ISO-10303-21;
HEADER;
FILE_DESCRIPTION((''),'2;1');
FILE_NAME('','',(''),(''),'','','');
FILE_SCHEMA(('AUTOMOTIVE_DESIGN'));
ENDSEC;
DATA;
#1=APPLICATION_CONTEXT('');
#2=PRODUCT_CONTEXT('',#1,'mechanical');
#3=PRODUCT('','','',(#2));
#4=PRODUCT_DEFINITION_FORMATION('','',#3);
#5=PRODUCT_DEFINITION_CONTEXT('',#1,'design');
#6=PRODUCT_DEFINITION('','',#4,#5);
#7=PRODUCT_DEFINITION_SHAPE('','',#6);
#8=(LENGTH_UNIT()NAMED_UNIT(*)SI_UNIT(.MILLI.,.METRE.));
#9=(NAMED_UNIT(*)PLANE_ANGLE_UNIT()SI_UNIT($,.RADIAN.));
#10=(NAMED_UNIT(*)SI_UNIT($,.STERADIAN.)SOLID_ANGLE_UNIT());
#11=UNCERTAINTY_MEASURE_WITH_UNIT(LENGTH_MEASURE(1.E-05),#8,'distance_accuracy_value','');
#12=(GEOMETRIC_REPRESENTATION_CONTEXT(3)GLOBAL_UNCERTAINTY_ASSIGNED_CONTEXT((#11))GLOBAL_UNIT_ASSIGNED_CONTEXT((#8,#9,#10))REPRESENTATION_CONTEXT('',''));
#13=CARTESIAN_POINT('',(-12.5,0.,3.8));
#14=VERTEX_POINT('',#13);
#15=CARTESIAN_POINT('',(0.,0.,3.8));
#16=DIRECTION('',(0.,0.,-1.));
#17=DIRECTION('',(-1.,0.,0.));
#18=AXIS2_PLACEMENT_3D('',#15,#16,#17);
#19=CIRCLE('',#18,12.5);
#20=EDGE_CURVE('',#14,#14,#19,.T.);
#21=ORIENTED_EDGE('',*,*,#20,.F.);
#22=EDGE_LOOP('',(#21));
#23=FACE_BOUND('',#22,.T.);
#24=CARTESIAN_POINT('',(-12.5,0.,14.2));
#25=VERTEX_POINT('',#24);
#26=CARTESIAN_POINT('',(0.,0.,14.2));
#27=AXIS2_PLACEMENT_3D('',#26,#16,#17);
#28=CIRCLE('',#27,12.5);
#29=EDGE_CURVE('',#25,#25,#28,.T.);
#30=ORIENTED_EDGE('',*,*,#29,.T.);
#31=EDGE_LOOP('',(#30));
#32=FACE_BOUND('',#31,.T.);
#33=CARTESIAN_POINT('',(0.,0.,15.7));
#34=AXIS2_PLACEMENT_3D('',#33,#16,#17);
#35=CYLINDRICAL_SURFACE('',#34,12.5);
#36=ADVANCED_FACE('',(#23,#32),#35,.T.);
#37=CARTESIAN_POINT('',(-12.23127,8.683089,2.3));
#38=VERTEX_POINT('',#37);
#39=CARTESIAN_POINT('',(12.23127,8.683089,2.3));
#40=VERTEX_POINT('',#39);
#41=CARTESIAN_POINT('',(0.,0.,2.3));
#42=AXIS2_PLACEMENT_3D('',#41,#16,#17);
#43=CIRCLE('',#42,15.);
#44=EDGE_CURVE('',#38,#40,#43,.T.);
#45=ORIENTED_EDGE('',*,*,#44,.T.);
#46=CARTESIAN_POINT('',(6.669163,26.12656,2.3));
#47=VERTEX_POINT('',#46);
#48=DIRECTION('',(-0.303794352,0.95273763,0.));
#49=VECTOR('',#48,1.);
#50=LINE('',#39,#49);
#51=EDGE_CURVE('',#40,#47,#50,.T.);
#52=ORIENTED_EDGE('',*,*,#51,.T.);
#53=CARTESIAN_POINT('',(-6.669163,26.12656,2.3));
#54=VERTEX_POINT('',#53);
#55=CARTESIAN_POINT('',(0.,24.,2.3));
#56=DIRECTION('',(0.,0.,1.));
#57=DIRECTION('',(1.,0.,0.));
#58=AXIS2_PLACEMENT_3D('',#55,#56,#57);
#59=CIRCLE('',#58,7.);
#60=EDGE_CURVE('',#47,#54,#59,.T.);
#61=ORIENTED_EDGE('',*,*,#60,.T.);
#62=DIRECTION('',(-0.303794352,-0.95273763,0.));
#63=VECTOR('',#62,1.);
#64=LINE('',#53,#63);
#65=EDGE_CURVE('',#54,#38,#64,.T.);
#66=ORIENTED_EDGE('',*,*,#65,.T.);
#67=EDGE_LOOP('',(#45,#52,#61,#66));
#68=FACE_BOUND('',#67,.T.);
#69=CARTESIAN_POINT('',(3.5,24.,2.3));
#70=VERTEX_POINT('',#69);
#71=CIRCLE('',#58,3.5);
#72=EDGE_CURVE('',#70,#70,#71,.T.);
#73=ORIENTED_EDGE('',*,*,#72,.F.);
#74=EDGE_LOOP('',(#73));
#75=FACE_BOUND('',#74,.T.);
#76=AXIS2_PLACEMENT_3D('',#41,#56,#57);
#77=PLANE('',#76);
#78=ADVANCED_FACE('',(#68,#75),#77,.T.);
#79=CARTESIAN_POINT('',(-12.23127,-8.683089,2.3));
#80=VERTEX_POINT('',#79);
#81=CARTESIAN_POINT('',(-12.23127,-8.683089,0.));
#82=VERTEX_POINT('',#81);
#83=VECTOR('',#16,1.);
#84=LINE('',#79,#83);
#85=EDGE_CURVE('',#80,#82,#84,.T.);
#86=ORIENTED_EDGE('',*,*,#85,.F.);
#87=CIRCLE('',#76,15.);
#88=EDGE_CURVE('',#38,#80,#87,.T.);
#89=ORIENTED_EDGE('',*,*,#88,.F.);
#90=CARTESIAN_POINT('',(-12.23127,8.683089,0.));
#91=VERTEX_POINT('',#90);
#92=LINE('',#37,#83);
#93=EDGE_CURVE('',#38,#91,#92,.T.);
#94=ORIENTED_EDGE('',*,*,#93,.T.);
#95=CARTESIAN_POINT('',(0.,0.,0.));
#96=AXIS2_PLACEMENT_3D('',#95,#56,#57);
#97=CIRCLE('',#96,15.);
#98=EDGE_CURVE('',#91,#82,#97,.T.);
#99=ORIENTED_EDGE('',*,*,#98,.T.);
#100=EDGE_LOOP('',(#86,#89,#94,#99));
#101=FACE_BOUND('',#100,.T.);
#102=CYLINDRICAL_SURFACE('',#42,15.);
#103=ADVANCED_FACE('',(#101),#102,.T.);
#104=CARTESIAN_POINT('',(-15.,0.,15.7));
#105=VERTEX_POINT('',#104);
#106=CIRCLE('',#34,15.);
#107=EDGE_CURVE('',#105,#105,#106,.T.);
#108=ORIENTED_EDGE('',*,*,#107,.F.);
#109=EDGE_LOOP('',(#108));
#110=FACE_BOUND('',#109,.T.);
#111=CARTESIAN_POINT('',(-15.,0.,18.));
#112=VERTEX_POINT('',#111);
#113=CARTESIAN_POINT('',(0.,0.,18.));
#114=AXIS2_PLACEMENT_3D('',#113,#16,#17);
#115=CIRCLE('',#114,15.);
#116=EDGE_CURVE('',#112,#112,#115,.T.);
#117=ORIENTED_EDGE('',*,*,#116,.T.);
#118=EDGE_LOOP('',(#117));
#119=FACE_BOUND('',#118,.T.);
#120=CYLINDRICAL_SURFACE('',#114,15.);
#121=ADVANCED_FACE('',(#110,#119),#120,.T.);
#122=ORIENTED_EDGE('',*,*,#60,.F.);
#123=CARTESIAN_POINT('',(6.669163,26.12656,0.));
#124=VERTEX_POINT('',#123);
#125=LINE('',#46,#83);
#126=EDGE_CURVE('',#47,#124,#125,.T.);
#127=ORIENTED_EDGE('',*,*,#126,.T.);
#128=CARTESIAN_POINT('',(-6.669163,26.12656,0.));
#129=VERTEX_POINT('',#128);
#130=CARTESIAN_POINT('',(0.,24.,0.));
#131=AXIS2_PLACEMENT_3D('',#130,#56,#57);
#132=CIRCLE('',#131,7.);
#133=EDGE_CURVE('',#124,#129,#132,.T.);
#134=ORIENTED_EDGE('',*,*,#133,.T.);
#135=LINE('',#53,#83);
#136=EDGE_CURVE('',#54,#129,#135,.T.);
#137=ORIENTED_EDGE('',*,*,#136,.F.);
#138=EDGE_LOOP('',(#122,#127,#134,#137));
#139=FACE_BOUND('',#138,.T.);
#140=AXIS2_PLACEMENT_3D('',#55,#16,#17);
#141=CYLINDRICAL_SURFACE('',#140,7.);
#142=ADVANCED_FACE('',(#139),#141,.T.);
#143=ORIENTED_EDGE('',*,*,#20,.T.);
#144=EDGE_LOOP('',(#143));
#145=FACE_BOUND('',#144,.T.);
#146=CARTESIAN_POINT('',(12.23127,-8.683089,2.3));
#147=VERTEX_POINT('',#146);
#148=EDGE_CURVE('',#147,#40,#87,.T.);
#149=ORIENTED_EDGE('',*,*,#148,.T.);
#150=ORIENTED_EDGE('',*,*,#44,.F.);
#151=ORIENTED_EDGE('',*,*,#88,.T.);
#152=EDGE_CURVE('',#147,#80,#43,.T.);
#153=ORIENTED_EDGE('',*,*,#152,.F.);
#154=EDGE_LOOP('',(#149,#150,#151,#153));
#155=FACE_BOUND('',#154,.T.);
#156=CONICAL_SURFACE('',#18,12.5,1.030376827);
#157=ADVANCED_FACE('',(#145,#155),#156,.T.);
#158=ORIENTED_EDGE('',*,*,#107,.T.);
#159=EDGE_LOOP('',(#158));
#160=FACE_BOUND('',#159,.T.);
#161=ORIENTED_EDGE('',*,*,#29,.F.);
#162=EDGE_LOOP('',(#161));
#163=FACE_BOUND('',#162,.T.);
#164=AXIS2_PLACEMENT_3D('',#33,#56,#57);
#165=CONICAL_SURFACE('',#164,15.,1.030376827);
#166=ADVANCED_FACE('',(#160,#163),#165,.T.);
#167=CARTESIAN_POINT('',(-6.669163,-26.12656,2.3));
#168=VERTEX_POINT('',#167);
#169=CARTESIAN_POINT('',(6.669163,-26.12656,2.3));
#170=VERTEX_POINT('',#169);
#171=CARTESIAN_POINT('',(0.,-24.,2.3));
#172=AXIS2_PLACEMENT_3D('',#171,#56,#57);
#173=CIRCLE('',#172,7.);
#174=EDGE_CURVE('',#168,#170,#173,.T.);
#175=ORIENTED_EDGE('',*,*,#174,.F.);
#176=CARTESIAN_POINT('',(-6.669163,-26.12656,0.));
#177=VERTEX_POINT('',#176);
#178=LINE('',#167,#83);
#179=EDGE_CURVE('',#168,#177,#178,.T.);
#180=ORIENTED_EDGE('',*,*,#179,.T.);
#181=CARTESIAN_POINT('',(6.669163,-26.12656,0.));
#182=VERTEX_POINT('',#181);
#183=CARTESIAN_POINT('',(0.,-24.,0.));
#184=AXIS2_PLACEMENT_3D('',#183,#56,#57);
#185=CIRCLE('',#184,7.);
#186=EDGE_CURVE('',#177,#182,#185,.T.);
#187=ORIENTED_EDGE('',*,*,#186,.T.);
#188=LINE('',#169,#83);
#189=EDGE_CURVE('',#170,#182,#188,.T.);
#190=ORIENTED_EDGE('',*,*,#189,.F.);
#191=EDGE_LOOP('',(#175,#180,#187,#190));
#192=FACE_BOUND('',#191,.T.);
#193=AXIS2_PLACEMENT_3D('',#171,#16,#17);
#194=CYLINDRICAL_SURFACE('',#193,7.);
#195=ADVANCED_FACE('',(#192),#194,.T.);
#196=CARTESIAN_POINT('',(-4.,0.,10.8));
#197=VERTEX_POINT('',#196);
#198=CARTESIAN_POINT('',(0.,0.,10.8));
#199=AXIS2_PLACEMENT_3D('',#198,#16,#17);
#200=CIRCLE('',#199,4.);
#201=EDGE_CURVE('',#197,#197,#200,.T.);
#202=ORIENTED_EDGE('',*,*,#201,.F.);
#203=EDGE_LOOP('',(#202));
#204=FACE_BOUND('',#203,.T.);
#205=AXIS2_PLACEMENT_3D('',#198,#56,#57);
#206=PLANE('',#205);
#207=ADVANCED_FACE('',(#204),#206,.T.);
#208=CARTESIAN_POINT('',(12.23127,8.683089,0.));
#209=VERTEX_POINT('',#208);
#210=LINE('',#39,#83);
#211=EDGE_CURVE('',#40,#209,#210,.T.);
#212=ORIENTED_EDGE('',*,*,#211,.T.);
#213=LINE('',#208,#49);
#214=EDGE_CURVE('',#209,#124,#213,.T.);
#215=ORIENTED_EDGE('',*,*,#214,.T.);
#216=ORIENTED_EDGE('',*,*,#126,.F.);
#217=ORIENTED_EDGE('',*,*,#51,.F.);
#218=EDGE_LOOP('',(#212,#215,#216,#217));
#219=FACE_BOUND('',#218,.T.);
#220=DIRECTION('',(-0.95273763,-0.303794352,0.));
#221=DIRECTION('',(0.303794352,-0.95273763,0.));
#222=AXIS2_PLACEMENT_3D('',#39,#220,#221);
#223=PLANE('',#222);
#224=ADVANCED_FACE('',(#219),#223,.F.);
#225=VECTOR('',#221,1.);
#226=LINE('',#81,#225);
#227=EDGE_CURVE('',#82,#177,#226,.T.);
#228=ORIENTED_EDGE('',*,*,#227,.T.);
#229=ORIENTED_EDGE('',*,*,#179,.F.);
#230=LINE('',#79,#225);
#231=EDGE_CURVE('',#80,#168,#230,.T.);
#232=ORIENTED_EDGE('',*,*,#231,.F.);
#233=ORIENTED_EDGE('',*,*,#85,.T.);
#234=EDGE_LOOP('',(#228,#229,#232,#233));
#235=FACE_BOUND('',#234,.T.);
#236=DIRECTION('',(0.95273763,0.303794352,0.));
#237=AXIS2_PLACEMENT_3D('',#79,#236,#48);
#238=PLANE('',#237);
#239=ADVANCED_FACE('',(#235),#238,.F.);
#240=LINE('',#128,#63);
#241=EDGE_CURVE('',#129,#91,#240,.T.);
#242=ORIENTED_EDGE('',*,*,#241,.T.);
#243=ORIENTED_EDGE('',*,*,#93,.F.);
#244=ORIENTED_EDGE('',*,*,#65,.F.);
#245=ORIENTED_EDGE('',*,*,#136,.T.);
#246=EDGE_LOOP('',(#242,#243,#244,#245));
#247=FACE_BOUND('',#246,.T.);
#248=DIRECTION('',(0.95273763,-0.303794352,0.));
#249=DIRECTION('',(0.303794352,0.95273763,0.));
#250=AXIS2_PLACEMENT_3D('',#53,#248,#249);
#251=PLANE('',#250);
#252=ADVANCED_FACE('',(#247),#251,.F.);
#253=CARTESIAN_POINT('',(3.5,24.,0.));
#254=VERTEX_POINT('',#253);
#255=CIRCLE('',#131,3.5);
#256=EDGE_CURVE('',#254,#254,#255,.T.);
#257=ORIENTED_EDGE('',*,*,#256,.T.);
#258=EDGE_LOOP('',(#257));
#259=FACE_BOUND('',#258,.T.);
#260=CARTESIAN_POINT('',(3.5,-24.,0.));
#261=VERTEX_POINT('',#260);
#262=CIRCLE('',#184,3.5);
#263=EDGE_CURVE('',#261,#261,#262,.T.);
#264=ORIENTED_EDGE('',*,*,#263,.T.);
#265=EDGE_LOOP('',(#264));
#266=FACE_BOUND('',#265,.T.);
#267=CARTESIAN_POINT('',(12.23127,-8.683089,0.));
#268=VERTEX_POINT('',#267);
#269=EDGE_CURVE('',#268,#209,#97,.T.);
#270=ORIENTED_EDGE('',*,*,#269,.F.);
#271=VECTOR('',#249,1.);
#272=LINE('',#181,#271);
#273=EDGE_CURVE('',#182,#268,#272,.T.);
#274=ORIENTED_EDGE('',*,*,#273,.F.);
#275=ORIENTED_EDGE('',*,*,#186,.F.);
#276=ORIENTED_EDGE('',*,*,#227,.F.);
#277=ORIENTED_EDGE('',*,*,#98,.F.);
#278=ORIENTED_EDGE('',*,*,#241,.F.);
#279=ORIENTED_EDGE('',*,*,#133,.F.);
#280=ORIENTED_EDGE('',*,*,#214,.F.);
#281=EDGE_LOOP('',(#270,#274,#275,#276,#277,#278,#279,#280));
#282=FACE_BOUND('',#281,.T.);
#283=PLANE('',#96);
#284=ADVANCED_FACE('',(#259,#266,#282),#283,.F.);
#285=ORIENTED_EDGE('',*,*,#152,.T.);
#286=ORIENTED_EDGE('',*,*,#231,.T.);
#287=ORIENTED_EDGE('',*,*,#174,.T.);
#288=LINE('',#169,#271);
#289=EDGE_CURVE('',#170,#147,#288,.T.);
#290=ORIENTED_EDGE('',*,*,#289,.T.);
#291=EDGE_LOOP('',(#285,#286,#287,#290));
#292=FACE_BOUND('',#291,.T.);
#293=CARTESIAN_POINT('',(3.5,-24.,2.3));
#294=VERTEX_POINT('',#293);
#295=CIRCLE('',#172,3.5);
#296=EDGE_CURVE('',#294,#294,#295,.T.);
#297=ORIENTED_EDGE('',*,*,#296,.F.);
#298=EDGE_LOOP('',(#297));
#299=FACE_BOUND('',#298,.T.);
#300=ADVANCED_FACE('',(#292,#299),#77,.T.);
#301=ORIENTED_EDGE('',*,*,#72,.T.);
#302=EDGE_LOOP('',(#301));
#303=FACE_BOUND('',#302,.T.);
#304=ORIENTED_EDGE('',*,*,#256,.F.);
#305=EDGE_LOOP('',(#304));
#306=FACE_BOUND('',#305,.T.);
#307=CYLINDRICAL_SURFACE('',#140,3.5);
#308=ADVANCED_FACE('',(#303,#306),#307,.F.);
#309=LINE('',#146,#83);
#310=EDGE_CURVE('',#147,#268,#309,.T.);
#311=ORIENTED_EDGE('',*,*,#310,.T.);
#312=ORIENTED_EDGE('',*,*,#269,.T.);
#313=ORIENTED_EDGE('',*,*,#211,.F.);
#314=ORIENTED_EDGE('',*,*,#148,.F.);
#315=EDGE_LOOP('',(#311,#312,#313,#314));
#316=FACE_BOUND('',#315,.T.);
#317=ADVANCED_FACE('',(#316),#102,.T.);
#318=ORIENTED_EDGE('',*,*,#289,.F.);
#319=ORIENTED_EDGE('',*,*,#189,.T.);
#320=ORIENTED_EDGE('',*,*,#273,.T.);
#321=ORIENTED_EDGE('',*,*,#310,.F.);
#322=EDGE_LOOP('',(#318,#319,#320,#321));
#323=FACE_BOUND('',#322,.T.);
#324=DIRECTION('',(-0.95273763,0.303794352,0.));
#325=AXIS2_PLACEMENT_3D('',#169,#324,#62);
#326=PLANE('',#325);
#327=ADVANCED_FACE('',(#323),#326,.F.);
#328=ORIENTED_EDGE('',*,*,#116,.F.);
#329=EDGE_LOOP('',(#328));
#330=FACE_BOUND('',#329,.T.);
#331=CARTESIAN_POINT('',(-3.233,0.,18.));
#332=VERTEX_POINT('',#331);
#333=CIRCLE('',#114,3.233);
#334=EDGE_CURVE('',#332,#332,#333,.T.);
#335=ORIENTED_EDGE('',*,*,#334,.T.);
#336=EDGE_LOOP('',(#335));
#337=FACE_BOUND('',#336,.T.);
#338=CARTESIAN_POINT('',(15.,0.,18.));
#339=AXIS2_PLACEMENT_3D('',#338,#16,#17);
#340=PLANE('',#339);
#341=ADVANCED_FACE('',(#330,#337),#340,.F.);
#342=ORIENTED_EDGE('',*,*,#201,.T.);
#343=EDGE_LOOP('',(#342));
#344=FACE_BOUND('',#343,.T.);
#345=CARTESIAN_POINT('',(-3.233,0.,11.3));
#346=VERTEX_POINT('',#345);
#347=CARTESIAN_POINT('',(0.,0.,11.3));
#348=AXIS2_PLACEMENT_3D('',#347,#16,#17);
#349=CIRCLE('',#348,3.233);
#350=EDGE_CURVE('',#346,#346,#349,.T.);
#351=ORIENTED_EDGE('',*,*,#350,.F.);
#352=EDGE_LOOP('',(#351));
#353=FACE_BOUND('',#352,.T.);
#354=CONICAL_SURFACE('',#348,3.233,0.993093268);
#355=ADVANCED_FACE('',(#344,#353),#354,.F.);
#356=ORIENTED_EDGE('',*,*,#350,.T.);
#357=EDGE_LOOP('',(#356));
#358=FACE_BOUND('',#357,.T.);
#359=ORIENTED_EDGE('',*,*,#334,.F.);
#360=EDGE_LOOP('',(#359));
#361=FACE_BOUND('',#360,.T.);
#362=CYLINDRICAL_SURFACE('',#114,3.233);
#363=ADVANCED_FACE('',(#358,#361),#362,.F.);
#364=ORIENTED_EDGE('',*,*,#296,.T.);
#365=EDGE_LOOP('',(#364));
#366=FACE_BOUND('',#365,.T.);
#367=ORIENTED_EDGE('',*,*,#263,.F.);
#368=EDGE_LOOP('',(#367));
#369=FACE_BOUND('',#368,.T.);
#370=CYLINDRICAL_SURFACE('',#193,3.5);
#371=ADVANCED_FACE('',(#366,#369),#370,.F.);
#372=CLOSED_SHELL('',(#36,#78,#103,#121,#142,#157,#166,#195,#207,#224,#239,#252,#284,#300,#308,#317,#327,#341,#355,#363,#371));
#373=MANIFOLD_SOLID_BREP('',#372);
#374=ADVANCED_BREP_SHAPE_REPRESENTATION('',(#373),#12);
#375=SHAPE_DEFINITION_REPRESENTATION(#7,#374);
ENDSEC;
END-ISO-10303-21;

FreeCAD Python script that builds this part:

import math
import FreeCAD as App
import Part
import Sketcher
from FreeCAD import Vector
Q = App.Units.Quantity


def add_polygon(sketch, points):
    """Adds a closed chain of lines whose ends are joined by coincident constraints."""
    first, n = sketch.GeometryCount, len(points)
    for a, b in zip(points, points[1:] + points[:1]):
        sketch.addGeometry(Part.LineSegment(App.Vector(*a, 0), App.Vector(*b, 0)), False)
    for i in range(n):
        sketch.addConstraint(Sketcher.Constraint("Coincident", first + i, 2, first + (i + 1) % n, 1))

doc = App.newDocument("Part")
params = doc.addObject("Spreadsheet::Sheet", "Params")
for row, (alias, value) in enumerate([
    ("sketch1_diameter", "7 mm"),
    ("sketch1_radius", "7 mm"),
    ("sketch1_radius2", "15 mm"),
    ("pad1_length", "2.3 mm"),
    ("sketch2_width", "15 mm"),
    ("sketch2_height", "13.4 mm"),
    ("sketch2_height2", "10.4 mm"),
    ("revolution_angle", "360 deg"),
    ("sketch3_width", "15 mm"),
    ("sketch3_height", "2.3 mm"),
    ("revolution2_angle", "360 deg"),
    ("sketch4_width", "4 mm"),
    ("sketch4_height", "7.2 mm"),
    ("sketch4_height2", "6.7 mm"),
    ("groove_angle", "360 deg"),
], start=1):
    params.set(f"A{row}", alias)
    params.set(f"B{row}", "=" + value)
    params.setAlias(f"B{row}", alias)

body = doc.addObject("PartDesign::Body", "Body")

sketch1 = body.newObject("Sketcher::SketchObject", "Sketch")
sketch1.AttachmentSupport = (doc.getObject("XY_Plane"), [""])
sketch1.MapMode = "FlatFace"
sketch1.addGeometry(Part.LineSegment(Vector(-12.2, -8.7, 0), Vector(-6.7, -26.1, 0)), False)
sketch1.addGeometry(Part.ArcOfCircle(Part.Circle(Vector(0, -24, 0), Vector(0, 0, 1), 7), math.radians(-162), math.radians(-18)), False)
sketch1.addGeometry(Part.LineSegment(Vector(6.7, -26.1, 0), Vector(12.2, -8.7, 0)), False)
sketch1.addGeometry(Part.ArcOfCircle(Part.Circle(Vector(0, 0, 0), Vector(0, 0, 1), 15), math.radians(-35), math.radians(35)), False)
sketch1.addGeometry(Part.LineSegment(Vector(12.2, 8.7, 0), Vector(6.7, 26.1, 0)), False)
sketch1.addGeometry(Part.ArcOfCircle(Part.Circle(Vector(0, 24, 0), Vector(0, 0, 1), 7), math.radians(18), math.radians(162)), False)
sketch1.addGeometry(Part.LineSegment(Vector(-6.7, 26.1, 0), Vector(-12.2, 8.7, 0)), False)
sketch1.addGeometry(Part.ArcOfCircle(Part.Circle(Vector(0, 0, 0), Vector(0, 0, 1), 15), math.radians(145), math.radians(215)), False)
sketch1.addGeometry(Part.Circle(Vector(0, -24, 0), Vector(0, 0, 1), 3.5), False)
sketch1.addGeometry(Part.Circle(Vector(0, 24, 0), Vector(0, 0, 1), 3.5), False)
sketch1.addConstraint(Sketcher.Constraint("Tangent", 0, 2, 1, 1))
sketch1.addConstraint(Sketcher.Constraint("Tangent", 1, 2, 2, 1))
sketch1.addConstraint(Sketcher.Constraint("Coincident", 2, 2, 3, 1))
sketch1.addConstraint(Sketcher.Constraint("Coincident", 3, 2, 4, 1))
sketch1.addConstraint(Sketcher.Constraint("Tangent", 4, 2, 5, 1))
sketch1.addConstraint(Sketcher.Constraint("Tangent", 5, 2, 6, 1))
sketch1.addConstraint(Sketcher.Constraint("Coincident", 6, 2, 7, 1))
sketch1.addConstraint(Sketcher.Constraint("Coincident", 7, 2, 0, 1))
sketch1.addConstraint(Sketcher.Constraint("Coincident", 3, 3, -1, 1))
sketch1.addConstraint(Sketcher.Constraint("Coincident", 7, 3, -1, 1))
sketch1.addConstraint(Sketcher.Constraint("Coincident", 8, 3, 1, 3))
sketch1.addConstraint(Sketcher.Constraint("Coincident", 9, 3, 5, 3))
sketch1.addConstraint(Sketcher.Constraint("Equal", 1, 5))
sketch1.addConstraint(Sketcher.Constraint("Equal", 3, 7))
sketch1.addConstraint(Sketcher.Constraint("Equal", 8, 9))
sketch1.addConstraint(Sketcher.Constraint("Symmetric", 1, 3, 5, 3, -1, 1))
sketch1.addConstraint(Sketcher.Constraint("Symmetric", 0, 2, 1, 2, -2))
sketch1.addConstraint(Sketcher.Constraint("Parallel", 0, 4))
sketch1.addConstraint(Sketcher.Constraint("Parallel", 2, 6))
sketch1.addConstraint(Sketcher.Constraint("Diameter", 8, Q("7 mm")))
sketch1.addConstraint(Sketcher.Constraint("Radius", 1, Q("7 mm")))
sketch1.addConstraint(Sketcher.Constraint("Radius", 3, Q("15 mm")))
sketch1.addConstraint(Sketcher.Constraint("DistanceY", 1, 3, -1, 1, Q("24 mm")))
sketch1.addConstraint(Sketcher.Constraint("DistanceY", 0, 2, -1, 1, Q("26.12656 mm")))
sketch1.setExpression("Constraints[19]", "Params.sketch1_diameter")
sketch1.setExpression("Constraints[20]", "Params.sketch1_radius")
sketch1.setExpression("Constraints[21]", "Params.sketch1_radius2")
pad1 = body.newObject("PartDesign::Pad", "Pad")
pad1.Profile = sketch1
pad1.setExpression("Length", "Params.pad1_length")

sketch2 = body.newObject("Sketcher::SketchObject", "Sketch001")
sketch2.AttachmentSupport = (doc.getObject("XZ_Plane"), [""])
sketch2.MapMode = "FlatFace"
add_polygon(sketch2, [(15, 2.3), (0, 2.3), (0, 15.7), (15, 15.7), (12.5, 14.2), (12.5, 3.8)])
sketch2.addConstraint(Sketcher.Constraint("Horizontal", 0))
sketch2.addConstraint(Sketcher.Constraint("Vertical", 1))
sketch2.addConstraint(Sketcher.Constraint("Horizontal", 2))
sketch2.addConstraint(Sketcher.Constraint("Vertical", 4))
sketch2.addConstraint(Sketcher.Constraint("PointOnObject", 0, 2, -2))
sketch2.addConstraint(Sketcher.Constraint("Vertical", 2, 2, 5, 2))
sketch2.addConstraint(Sketcher.Constraint("Equal", 3, 5))
sketch2.addConstraint(Sketcher.Constraint("DistanceX", 0, 2, 0, 1, Q("15 mm")))
sketch2.addConstraint(Sketcher.Constraint("DistanceY", 1, 1, 1, 2, Q("13.4 mm")))
sketch2.addConstraint(Sketcher.Constraint("DistanceY", 4, 2, 4, 1, Q("10.4 mm")))
sketch2.addConstraint(Sketcher.Constraint("DistanceY", -1, 1, 0, 2, Q("2.3 mm")))
sketch2.addConstraint(Sketcher.Constraint("DistanceX", -1, 1, 3, 2, Q("12.5 mm")))
sketch2.setExpression("Constraints[13]", "Params.sketch2_width")
sketch2.setExpression("Constraints[14]", "Params.sketch2_height")
sketch2.setExpression("Constraints[15]", "Params.sketch2_height2")
revolution = body.newObject("PartDesign::Revolution", "Revolution")
revolution.Profile = sketch2
revolution.ReferenceAxis = (sketch2, ["V_Axis"])
revolution.setExpression("Angle", "Params.revolution_angle")

sketch3 = body.newObject("Sketcher::SketchObject", "Sketch002")
sketch3.AttachmentSupport = (doc.getObject("XZ_Plane"), [""])
sketch3.MapMode = "FlatFace"
add_polygon(sketch3, [(0, 15.7), (0, 18), (15, 18), (15, 15.7)])
sketch3.addConstraint(Sketcher.Constraint("Vertical", 0))
sketch3.addConstraint(Sketcher.Constraint("Horizontal", 1))
sketch3.addConstraint(Sketcher.Constraint("Vertical", 2))
sketch3.addConstraint(Sketcher.Constraint("Horizontal", 3))
sketch3.addConstraint(Sketcher.Constraint("PointOnObject", 0, 2, -2))
sketch3.addConstraint(Sketcher.Constraint("DistanceX", 1, 1, 1, 2, Q("15 mm")))
sketch3.addConstraint(Sketcher.Constraint("DistanceY", 0, 1, 0, 2, Q("2.3 mm")))
sketch3.addConstraint(Sketcher.Constraint("DistanceY", -1, 1, 0, 2, Q("18 mm")))
sketch3.setExpression("Constraints[9]", "Params.sketch3_width")
sketch3.setExpression("Constraints[10]", "Params.sketch3_height")
revolution2 = body.newObject("PartDesign::Revolution", "Revolution001")
revolution2.Profile = sketch3
revolution2.ReferenceAxis = (sketch3, ["V_Axis"])
revolution2.setExpression("Angle", "Params.revolution2_angle")

sketch4 = body.newObject("Sketcher::SketchObject", "Sketch003")
sketch4.AttachmentSupport = (doc.getObject("XZ_Plane"), [""])
sketch4.MapMode = "FlatFace"
add_polygon(sketch4, [(4, 10.8), (0, 10.8), (0, 18), (3.2, 18), (3.2, 11.3)])
sketch4.addConstraint(Sketcher.Constraint("Horizontal", 0))
sketch4.addConstraint(Sketcher.Constraint("Vertical", 1))
sketch4.addConstraint(Sketcher.Constraint("Horizontal", 2))
sketch4.addConstraint(Sketcher.Constraint("Vertical", 3))
sketch4.addConstraint(Sketcher.Constraint("PointOnObject", 0, 2, -2))
sketch4.addConstraint(Sketcher.Constraint("DistanceX", 0, 2, 0, 1, Q("4 mm")))
sketch4.addConstraint(Sketcher.Constraint("DistanceY", 1, 1, 1, 2, Q("7.2 mm")))
sketch4.addConstraint(Sketcher.Constraint("DistanceY", 3, 2, 3, 1, Q("6.7 mm")))
sketch4.addConstraint(Sketcher.Constraint("DistanceY", -1, 1, 1, 2, Q("18 mm")))
sketch4.addConstraint(Sketcher.Constraint("DistanceX", 2, 1, 2, 2, Q("3.233 mm")))
sketch4.setExpression("Constraints[10]", "Params.sketch4_width")
sketch4.setExpression("Constraints[11]", "Params.sketch4_height")
sketch4.setExpression("Constraints[12]", "Params.sketch4_height2")
groove = body.newObject("PartDesign::Groove", "Groove")
groove.Profile = sketch4
groove.ReferenceAxis = (sketch4, ["V_Axis"])
groove.setExpression("Angle", "Params.groove_angle")

doc.recompute()
